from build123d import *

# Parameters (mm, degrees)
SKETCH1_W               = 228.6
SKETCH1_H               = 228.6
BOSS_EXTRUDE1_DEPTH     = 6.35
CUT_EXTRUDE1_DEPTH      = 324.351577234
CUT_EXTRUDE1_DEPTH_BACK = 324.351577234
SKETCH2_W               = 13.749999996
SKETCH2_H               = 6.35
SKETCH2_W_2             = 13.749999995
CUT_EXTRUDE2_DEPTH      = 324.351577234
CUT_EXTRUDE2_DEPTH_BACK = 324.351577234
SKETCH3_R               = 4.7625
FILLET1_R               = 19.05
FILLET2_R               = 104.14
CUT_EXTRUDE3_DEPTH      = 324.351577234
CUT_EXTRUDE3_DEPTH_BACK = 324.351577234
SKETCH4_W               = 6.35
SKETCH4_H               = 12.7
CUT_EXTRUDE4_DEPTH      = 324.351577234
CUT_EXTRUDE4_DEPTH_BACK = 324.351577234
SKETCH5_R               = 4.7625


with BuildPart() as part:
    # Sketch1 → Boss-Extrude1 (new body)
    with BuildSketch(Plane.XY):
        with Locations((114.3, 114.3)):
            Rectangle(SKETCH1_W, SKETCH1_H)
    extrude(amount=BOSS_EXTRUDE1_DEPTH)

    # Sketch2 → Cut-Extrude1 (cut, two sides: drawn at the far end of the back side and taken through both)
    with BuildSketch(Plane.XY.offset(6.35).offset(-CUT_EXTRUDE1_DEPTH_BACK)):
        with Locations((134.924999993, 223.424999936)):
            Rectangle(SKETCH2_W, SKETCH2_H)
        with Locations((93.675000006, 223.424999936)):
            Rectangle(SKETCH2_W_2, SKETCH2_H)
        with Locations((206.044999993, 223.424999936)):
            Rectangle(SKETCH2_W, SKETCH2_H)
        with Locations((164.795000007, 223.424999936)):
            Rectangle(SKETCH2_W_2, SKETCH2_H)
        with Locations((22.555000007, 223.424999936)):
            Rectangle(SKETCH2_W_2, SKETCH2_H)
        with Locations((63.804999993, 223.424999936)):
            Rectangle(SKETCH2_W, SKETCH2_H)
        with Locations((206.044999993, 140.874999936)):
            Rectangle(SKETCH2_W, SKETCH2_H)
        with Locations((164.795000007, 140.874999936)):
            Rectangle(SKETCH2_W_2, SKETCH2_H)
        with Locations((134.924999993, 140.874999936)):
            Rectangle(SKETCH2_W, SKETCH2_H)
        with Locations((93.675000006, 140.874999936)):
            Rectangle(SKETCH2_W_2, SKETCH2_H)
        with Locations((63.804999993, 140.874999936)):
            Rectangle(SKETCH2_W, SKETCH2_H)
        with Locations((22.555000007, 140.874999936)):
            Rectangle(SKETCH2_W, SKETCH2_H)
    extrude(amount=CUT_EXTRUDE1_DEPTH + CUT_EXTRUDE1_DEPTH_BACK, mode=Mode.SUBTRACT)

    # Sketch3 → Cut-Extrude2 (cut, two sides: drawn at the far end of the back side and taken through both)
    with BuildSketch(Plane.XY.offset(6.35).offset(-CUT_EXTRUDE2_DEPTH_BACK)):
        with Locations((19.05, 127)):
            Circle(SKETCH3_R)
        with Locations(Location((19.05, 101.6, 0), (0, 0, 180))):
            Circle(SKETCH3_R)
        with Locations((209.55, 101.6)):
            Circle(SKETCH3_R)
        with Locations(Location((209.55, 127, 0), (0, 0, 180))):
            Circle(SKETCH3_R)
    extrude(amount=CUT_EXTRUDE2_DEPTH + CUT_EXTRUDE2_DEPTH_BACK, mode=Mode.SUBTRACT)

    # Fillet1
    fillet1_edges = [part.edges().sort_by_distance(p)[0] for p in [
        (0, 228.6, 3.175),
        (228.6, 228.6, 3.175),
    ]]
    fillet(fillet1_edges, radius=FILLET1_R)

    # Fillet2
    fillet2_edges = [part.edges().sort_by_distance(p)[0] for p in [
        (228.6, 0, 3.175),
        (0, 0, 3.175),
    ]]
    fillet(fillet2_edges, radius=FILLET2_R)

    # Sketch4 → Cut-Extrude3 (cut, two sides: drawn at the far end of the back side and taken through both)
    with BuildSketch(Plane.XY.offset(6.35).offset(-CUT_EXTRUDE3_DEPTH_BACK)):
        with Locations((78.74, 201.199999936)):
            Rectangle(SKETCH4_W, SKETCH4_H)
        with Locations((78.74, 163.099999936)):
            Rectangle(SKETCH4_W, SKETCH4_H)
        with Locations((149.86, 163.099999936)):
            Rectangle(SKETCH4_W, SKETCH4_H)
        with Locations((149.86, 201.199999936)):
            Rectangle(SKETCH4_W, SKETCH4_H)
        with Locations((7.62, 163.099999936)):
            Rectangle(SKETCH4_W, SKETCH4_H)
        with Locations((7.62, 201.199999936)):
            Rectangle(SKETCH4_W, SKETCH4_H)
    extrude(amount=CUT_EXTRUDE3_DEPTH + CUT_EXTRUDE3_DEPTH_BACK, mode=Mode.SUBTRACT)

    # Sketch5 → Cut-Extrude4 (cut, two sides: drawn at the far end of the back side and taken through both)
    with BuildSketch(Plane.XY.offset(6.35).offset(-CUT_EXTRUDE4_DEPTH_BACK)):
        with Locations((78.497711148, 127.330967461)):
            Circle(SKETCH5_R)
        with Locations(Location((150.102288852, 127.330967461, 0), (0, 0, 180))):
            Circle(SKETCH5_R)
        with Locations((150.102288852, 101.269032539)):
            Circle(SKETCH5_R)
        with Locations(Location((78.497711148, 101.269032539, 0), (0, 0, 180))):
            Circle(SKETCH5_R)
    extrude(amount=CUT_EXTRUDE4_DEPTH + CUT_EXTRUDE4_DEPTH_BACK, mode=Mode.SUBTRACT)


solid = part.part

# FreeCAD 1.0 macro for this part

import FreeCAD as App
import Part
import Sketcher
from FreeCAD import Vector
Q = App.Units.Quantity


def edges_at(feature, points):
    """Names of the edges that pass closest to the given points."""
    edges = feature.Shape.Edges
    near = lambda p: min(range(len(edges)), key=lambda i: edges[i].distToShape(Part.Vertex(*p))[0])
    return sorted({f"Edge{near(p) + 1}" for p in points})


def add_polygon(sketch, points):
    """Adds a closed chain of lines whose ends are joined by coincident constraints."""
    first, n = sketch.GeometryCount, len(points)
    for a, b in zip(points, points[1:] + points[:1]):
        sketch.addGeometry(Part.LineSegment(App.Vector(*a, 0), App.Vector(*b, 0)), False)
    for i in range(n):
        sketch.addConstraint(Sketcher.Constraint("Coincident", first + i, 2, first + (i + 1) % n, 1))

doc = App.newDocument("Part")
body = doc.addObject("PartDesign::Body", "Body")

# Sketch on XY plane
sketch1 = doc.addObject("Sketcher::SketchObject", "Sketch")
body.addObject(sketch1)
sketch1.AttachmentSupport = (doc.XY_Plane, [""])
sketch1.MapMode = "FlatFace"
add_polygon(sketch1, [(0, 229), (0, 0), (229, 0), (229, 229)])  # lines 0-3
sketch1.addConstraint(Sketcher.Constraint("Vertical", 0))
sketch1.addConstraint(Sketcher.Constraint("Horizontal", 1))
sketch1.addConstraint(Sketcher.Constraint("Vertical", 2))
sketch1.addConstraint(Sketcher.Constraint("Horizontal", 3))
sketch1.addConstraint(Sketcher.Constraint("Coincident", 0, 2, -1, 1))
sketch1.addConstraint(Sketcher.Constraint("Equal", 3, 0))
sketch1.addConstraint(Sketcher.Constraint("DistanceX", 1, 1, 1, 2, Q("9 in")))
pad1 = doc.addObject("PartDesign::Pad", "Pad")
body.addObject(pad1)
pad1.Profile = sketch1
pad1.Length = Q("0.25 in")

# Sketch on XY plane
sketch2 = doc.addObject("Sketcher::SketchObject", "Sketch001")
body.addObject(sketch2)
sketch2.AttachmentSupport = (doc.XY_Plane, [""])
sketch2.MapMode = "FlatFace"
sketch2.AttachmentOffset = App.Placement(Vector(0, 0, 0.25 * 25.4), App.Rotation())
add_polygon(sketch2, [(128, 227), (128, 220), (142, 220), (142, 227)])  # lines 0-3
add_polygon(sketch2, [(87, 227), (87, 220), (101, 220), (101, 227)])  # lines 4-7
add_polygon(sketch2, [(199, 227), (199, 220), (213, 220), (213, 227)])  # lines 8-11
add_polygon(sketch2, [(158, 227), (158, 220), (172, 220), (172, 227)])  # lines 12-15
add_polygon(sketch2, [(16, 227), (16, 220), (29, 220), (29, 227)])  # lines 16-19
add_polygon(sketch2, [(57, 227), (57, 220), (71, 220), (71, 227)])  # lines 20-23
add_polygon(sketch2, [(199, 144), (199, 138), (213, 138), (213, 144)])  # lines 24-27
add_polygon(sketch2, [(158, 144), (158, 138), (172, 138), (172, 144)])  # lines 28-31
add_polygon(sketch2, [(128, 144), (128, 138), (142, 138), (142, 144)])  # lines 32-35
add_polygon(sketch2, [(87, 144), (87, 138), (101, 138), (101, 144)])  # lines 36-39
add_polygon(sketch2, [(57, 144), (57, 138), (71, 138), (71, 144)])  # lines 40-43
add_polygon(sketch2, [(16, 144), (16, 138), (29, 138), (29, 144)])  # lines 44-47
sketch2.addConstraint(Sketcher.Constraint("Vertical", 0))
sketch2.addConstraint(Sketcher.Constraint("Horizontal", 1))
sketch2.addConstraint(Sketcher.Constraint("Vertical", 2))
sketch2.addConstraint(Sketcher.Constraint("Horizontal", 3))
sketch2.addConstraint(Sketcher.Constraint("Vertical", 4))
sketch2.addConstraint(Sketcher.Constraint("Horizontal", 5))
sketch2.addConstraint(Sketcher.Constraint("Vertical", 6))
sketch2.addConstraint(Sketcher.Constraint("Horizontal", 7))
sketch2.addConstraint(Sketcher.Constraint("Vertical", 8))
sketch2.addConstraint(Sketcher.Constraint("Horizontal", 9))
sketch2.addConstraint(Sketcher.Constraint("Vertical", 10))
sketch2.addConstraint(Sketcher.Constraint("Horizontal", 11))
sketch2.addConstraint(Sketcher.Constraint("Vertical", 12))
sketch2.addConstraint(Sketcher.Constraint("Horizontal", 13))
sketch2.addConstraint(Sketcher.Constraint("Vertical", 14))
sketch2.addConstraint(Sketcher.Constraint("Horizontal", 15))
sketch2.addConstraint(Sketcher.Constraint("Vertical", 16))
sketch2.addConstraint(Sketcher.Constraint("Horizontal", 17))
sketch2.addConstraint(Sketcher.Constraint("Vertical", 18))
sketch2.addConstraint(Sketcher.Constraint("Horizontal", 19))
sketch2.addConstraint(Sketcher.Constraint("Vertical", 20))
sketch2.addConstraint(Sketcher.Constraint("Horizontal", 21))
sketch2.addConstraint(Sketcher.Constraint("Vertical", 22))
sketch2.addConstraint(Sketcher.Constraint("Horizontal", 23))
sketch2.addConstraint(Sketcher.Constraint("Vertical", 24))
sketch2.addConstraint(Sketcher.Constraint("Horizontal", 25))
sketch2.addConstraint(Sketcher.Constraint("Vertical", 26))
sketch2.addConstraint(Sketcher.Constraint("Horizontal", 27))
sketch2.addConstraint(Sketcher.Constraint("Vertical", 28))
sketch2.addConstraint(Sketcher.Constraint("Horizontal", 29))
sketch2.addConstraint(Sketcher.Constraint("Vertical", 30))
sketch2.addConstraint(Sketcher.Constraint("Horizontal", 31))
sketch2.addConstraint(Sketcher.Constraint("Vertical", 32))
sketch2.addConstraint(Sketcher.Constraint("Horizontal", 33))
sketch2.addConstraint(Sketcher.Constraint("Vertical", 34))
sketch2.addConstraint(Sketcher.Constraint("Horizontal", 35))
sketch2.addConstraint(Sketcher.Constraint("Vertical", 36))
sketch2.addConstraint(Sketcher.Constraint("Horizontal", 37))
sketch2.addConstraint(Sketcher.Constraint("Vertical", 38))
sketch2.addConstraint(Sketcher.Constraint("Horizontal", 39))
sketch2.addConstraint(Sketcher.Constraint("Vertical", 40))
sketch2.addConstraint(Sketcher.Constraint("Horizontal", 41))
sketch2.addConstraint(Sketcher.Constraint("Vertical", 42))
sketch2.addConstraint(Sketcher.Constraint("Horizontal", 43))
sketch2.addConstraint(Sketcher.Constraint("Vertical", 44))
sketch2.addConstraint(Sketcher.Constraint("Horizontal", 45))
sketch2.addConstraint(Sketcher.Constraint("Vertical", 46))
sketch2.addConstraint(Sketcher.Constraint("Horizontal", 47))
sketch2.addConstraint(Sketcher.Constraint("Horizontal", 1, 2, 4, 2))
sketch2.addConstraint(Sketcher.Constraint("Horizontal", 3, 2, 6, 2))
sketch2.addConstraint(Sketcher.Constraint("Horizontal", 5, 2, 8, 2))
sketch2.addConstraint(Sketcher.Constraint("Horizontal", 7, 2, 10, 2))
sketch2.addConstraint(Sketcher.Constraint("Horizontal", 9, 2, 12, 2))
sketch2.addConstraint(Sketcher.Constraint("Horizontal", 11, 2, 14, 2))
sketch2.addConstraint(Sketcher.Constraint("Horizontal", 13, 2, 16, 2))
sketch2.addConstraint(Sketcher.Constraint("Horizontal", 15, 2, 18, 2))
sketch2.addConstraint(Sketcher.Constraint("Horizontal", 17, 2, 20, 2))
sketch2.addConstraint(Sketcher.Constraint("Horizontal", 19, 2, 22, 2))
sketch2.addConstraint(Sketcher.Constraint("Horizontal", 25, 2, 28, 2))
sketch2.addConstraint(Sketcher.Constraint("Horizontal", 27, 2, 30, 2))
sketch2.addConstraint(Sketcher.Constraint("Horizontal", 29, 2, 32, 2))
sketch2.addConstraint(Sketcher.Constraint("Horizontal", 31, 2, 34, 2))
sketch2.addConstraint(Sketcher.Constraint("Horizontal", 33, 2, 36, 2))
sketch2.addConstraint(Sketcher.Constraint("Horizontal", 35, 2, 38, 2))
sketch2.addConstraint(Sketcher.Constraint("Horizontal", 37, 2, 40, 2))
sketch2.addConstraint(Sketcher.Constraint("Horizontal", 39, 2, 42, 2))
sketch2.addConstraint(Sketcher.Constraint("Horizontal", 41, 2, 44, 2))
sketch2.addConstraint(Sketcher.Constraint("Horizontal", 43, 2, 46, 2))
sketch2.addConstraint(Sketcher.Constraint("Vertical", 11, 2, 24, 2))
sketch2.addConstraint(Sketcher.Constraint("Vertical", 10, 2, 25, 2))
sketch2.addConstraint(Sketcher.Constraint("Vertical", 15, 2, 28, 2))
sketch2.addConstraint(Sketcher.Constraint("Vertical", 14, 2, 29, 2))
sketch2.addConstraint(Sketcher.Constraint("Vertical", 3, 2, 32, 2))
sketch2.addConstraint(Sketcher.Constraint("Vertical", 2, 2, 33, 2))
sketch2.addConstraint(Sketcher.Constraint("Vertical", 7, 2, 36, 2))
sketch2.addConstraint(Sketcher.Constraint("Vertical", 6, 2, 37, 2))
sketch2.addConstraint(Sketcher.Constraint("Vertical", 23, 2, 40, 2))
sketch2.addConstraint(Sketcher.Constraint("Vertical", 22, 2, 41, 2))
sketch2.addConstraint(Sketcher.Constraint("Vertical", 19, 2, 44, 2))
sketch2.addConstraint(Sketcher.Constraint("Vertical", 18, 2, 45, 2))
sketch2.addConstraint(Sketcher.Constraint("Equal", 3, 5))
sketch2.addConstraint(Sketcher.Constraint("Equal", 7, 9))
sketch2.addConstraint(Sketcher.Constraint("Equal", 11, 13))
sketch2.addConstraint(Sketcher.Constraint("Equal", 15, 17))
sketch2.addConstraint(Sketcher.Constraint("Equal", 19, 21))
sketch2.addConstraint(Sketcher.Constraint("Equal", 22, 24))
sketch2.addConstraint(Sketcher.Constraint("DistanceY", 26, 2, 9, 2, Q("3 in")))
sketch2.addConstraint(Sketcher.Constraint("DistanceY", 0, 2, 0, 1, Q("0.25 in")))
sketch2.addConstraint(Sketcher.Constraint("DistanceX", 0, 2, 8, 2, Q("2.8 in")))
sketch2.addConstraint(Sketcher.Constraint("DistanceX", 16, 2, 4, 2, Q("2.8 in")))
sketch2.addConstraint(Sketcher.Constraint("DistanceX", 36, 2, 28, 2, Q("2.8 in")))
sketch2.addConstraint(Sketcher.Constraint("DistanceX", 40, 2, 32, 2, Q("2.8 in")))
sketch2.addConstraint(Sketcher.Constraint("DistanceX", 1, 1, 1, 2, 13.75))
sketch2.addConstraint(Sketcher.Constraint("DistanceX", -1, 1, 0, 2, 128.05))
sketch2.addConstraint(Sketcher.Constraint("DistanceY", -1, 1, 0, 2, 220.25))
sketch2.addConstraint(Sketcher.Constraint("DistanceX", -1, 1, 4, 2, 86.8))
pocket1 = doc.addObject("PartDesign::Pocket", "Pocket")
body.addObject(pocket1)
pocket1.Profile = sketch2
pocket1.Type = "ThroughAll"
pocket1.Midplane = True

# Sketch on XY plane
sketch3 = doc.addObject("Sketcher::SketchObject", "Sketch002")
body.addObject(sketch3)
sketch3.AttachmentSupport = (doc.XY_Plane, [""])
sketch3.MapMode = "FlatFace"
sketch3.AttachmentOffset = App.Placement(Vector(0, 0, 0.25 * 25.4), App.Rotation())
sketch3.addGeometry(Part.Circle(Vector(19.1, 127, 0), Vector(0, 0, 1), 4.8), False)
sketch3.addGeometry(Part.Circle(Vector(19.1, 101.6, 0), Vector(0, 0, 1), 4.8), False)
sketch3.addGeometry(Part.Circle(Vector(209.6, 101.6, 0), Vector(0, 0, 1), 4.8), False)
sketch3.addGeometry(Part.Circle(Vector(209.6, 127, 0), Vector(0, 0, 1), 4.8), False)
sketch3.addConstraint(Sketcher.Constraint("Equal", 0, 1))
sketch3.addConstraint(Sketcher.Constraint("Equal", 1, 2))
sketch3.addConstraint(Sketcher.Constraint("Equal", 2, 3))
sketch3.addConstraint(Sketcher.Constraint("Horizontal", 1, 3, 2, 3))
sketch3.addConstraint(Sketcher.Constraint("Horizontal", 0, 3, 3, 3))
sketch3.addConstraint(Sketcher.Constraint("Vertical", 0, 3, 1, 3))
sketch3.addConstraint(Sketcher.Constraint("Vertical", 2, 3, 3, 3))
sketch3.addConstraint(Sketcher.Constraint("Diameter", 0, Q("0.375 in")))
sketch3.addConstraint(Sketcher.Constraint("DistanceY", -1, 1, 0, 3, Q("5 in")))
sketch3.addConstraint(Sketcher.Constraint("DistanceY", -1, 1, 1, 3, Q("4 in")))
sketch3.addConstraint(Sketcher.Constraint("DistanceX", 1, 3, 2, 3, Q("7.5 in")))
sketch3.addConstraint(Sketcher.Constraint("DistanceX", -1, 1, 0, 3, Q("0.75 in")))
pocket2 = doc.addObject("PartDesign::Pocket", "Pocket001")
body.addObject(pocket2)
pocket2.Profile = sketch3
pocket2.Type = "ThroughAll"
pocket2.Midplane = True
doc.recompute()

fillet = doc.addObject("PartDesign::Fillet", "Fillet")
body.addObject(fillet)
fillet.Base = (pocket2, edges_at(pocket2, [(0, 228.6, 3.175), (228.6, 228.6, 3.175)]))
fillet.Radius = Q("0.75 in")
doc.recompute()

fillet2 = doc.addObject("PartDesign::Fillet", "Fillet001")
body.addObject(fillet2)
fillet2.Base = (fillet, edges_at(fillet, [(228.6, 0, 3.175), (0, 0, 3.175)]))
fillet2.Radius = Q("4.1 in")

# Sketch on XY plane
sketch4 = doc.addObject("Sketcher::SketchObject", "Sketch003")
body.addObject(sketch4)
sketch4.AttachmentSupport = (doc.XY_Plane, [""])
sketch4.MapMode = "FlatFace"
sketch4.AttachmentOffset = App.Placement(Vector(0, 0, 0.25 * 25.4), App.Rotation())
add_polygon(sketch4, [(76, 208), (76, 195), (82, 195), (82, 208)])  # lines 0-3
add_polygon(sketch4, [(76, 169), (76, 157), (82, 157), (82, 169)])  # lines 4-7
add_polygon(sketch4, [(147, 169), (147, 157), (153, 157), (153, 169)])  # lines 8-11
add_polygon(sketch4, [(147, 208), (147, 195), (153, 195), (153, 208)])  # lines 12-15
add_polygon(sketch4, [(4, 169), (4, 157), (11, 157), (11, 169)])  # lines 16-19
add_polygon(sketch4, [(4, 208), (4, 195), (11, 195), (11, 208)])  # lines 20-23
sketch4.addConstraint(Sketcher.Constraint("Vertical", 0))
sketch4.addConstraint(Sketcher.Constraint("Horizontal", 1))
sketch4.addConstraint(Sketcher.Constraint("Vertical", 2))
sketch4.addConstraint(Sketcher.Constraint("Horizontal", 3))
sketch4.addConstraint(Sketcher.Constraint("Vertical", 4))
sketch4.addConstraint(Sketcher.Constraint("Horizontal", 5))
sketch4.addConstraint(Sketcher.Constraint("Vertical", 6))
sketch4.addConstraint(Sketcher.Constraint("Horizontal", 7))
sketch4.addConstraint(Sketcher.Constraint("Vertical", 8))
sketch4.addConstraint(Sketcher.Constraint("Horizontal", 9))
sketch4.addConstraint(Sketcher.Constraint("Vertical", 10))
sketch4.addConstraint(Sketcher.Constraint("Horizontal", 11))
sketch4.addConstraint(Sketcher.Constraint("Vertical", 12))
sketch4.addConstraint(Sketcher.Constraint("Horizontal", 13))
sketch4.addConstraint(Sketcher.Constraint("Vertical", 14))
sketch4.addConstraint(Sketcher.Constraint("Horizontal", 15))
sketch4.addConstraint(Sketcher.Constraint("Vertical", 16))
sketch4.addConstraint(Sketcher.Constraint("Horizontal", 17))
sketch4.addConstraint(Sketcher.Constraint("Vertical", 18))
sketch4.addConstraint(Sketcher.Constraint("Horizontal", 19))
sketch4.addConstraint(Sketcher.Constraint("Vertical", 20))
sketch4.addConstraint(Sketcher.Constraint("Horizontal", 21))
sketch4.addConstraint(Sketcher.Constraint("Vertical", 22))
sketch4.addConstraint(Sketcher.Constraint("Horizontal", 23))
sketch4.addConstraint(Sketcher.Constraint("Horizontal", 5, 2, 8, 2))
sketch4.addConstraint(Sketcher.Constraint("Horizontal", 7, 2, 10, 2))
sketch4.addConstraint(Sketcher.Constraint("Horizontal", 1, 2, 12, 2))
sketch4.addConstraint(Sketcher.Constraint("Horizontal", 3, 2, 14, 2))
sketch4.addConstraint(Sketcher.Constraint("Horizontal", 9, 2, 16, 2))
sketch4.addConstraint(Sketcher.Constraint("Horizontal", 11, 2, 18, 2))
sketch4.addConstraint(Sketcher.Constraint("Horizontal", 13, 2, 20, 2))
sketch4.addConstraint(Sketcher.Constraint("Horizontal", 15, 2, 22, 2))
sketch4.addConstraint(Sketcher.Constraint("Vertical", 3, 2, 4, 2))
sketch4.addConstraint(Sketcher.Constraint("Vertical", 2, 2, 5, 2))
sketch4.addConstraint(Sketcher.Constraint("Vertical", 11, 2, 12, 2))
sketch4.addConstraint(Sketcher.Constraint("Vertical", 10, 2, 13, 2))
sketch4.addConstraint(Sketcher.Constraint("Vertical", 19, 2, 20, 2))
sketch4.addConstraint(Sketcher.Constraint("Vertical", 18, 2, 21, 2))
sketch4.addConstraint(Sketcher.Constraint("Equal", 7, 9))
sketch4.addConstraint(Sketcher.Constraint("Equal", 15, 17))
sketch4.addConstraint(Sketcher.Constraint("Equal", 2, 4))
sketch4.addConstraint(Sketcher.Constraint("DistanceY", 0, 2, 0, 1, Q("0.5 in")))
sketch4.addConstraint(Sketcher.Constraint("DistanceY", 4, 2, 3, 2, Q("2 in")))
sketch4.addConstraint(Sketcher.Constraint("DistanceX", 1, 1, 1, 2, Q("0.25 in")))
sketch4.addConstraint(Sketcher.Constraint("DistanceX", 4, 2, 8, 2, Q("2.8 in")))
sketch4.addConstraint(Sketcher.Constraint("DistanceX", 16, 2, 4, 2, Q("2.8 in")))
sketch4.addConstraint(Sketcher.Constraint("DistanceX", -1, 1, 0, 2, Q("2.975 in")))
sketch4.addConstraint(Sketcher.Constraint("DistanceY", -1, 1, 0, 2, 194.85))
pocket3 = doc.addObject("PartDesign::Pocket", "Pocket002")
body.addObject(pocket3)
pocket3.Profile = sketch4
pocket3.Type = "ThroughAll"
pocket3.Midplane = True

# Sketch on XY plane
sketch5 = doc.addObject("Sketcher::SketchObject", "Sketch004")
body.addObject(sketch5)
sketch5.AttachmentSupport = (doc.XY_Plane, [""])
sketch5.MapMode = "FlatFace"
sketch5.AttachmentOffset = App.Placement(Vector(0, 0, 0.25 * 25.4), App.Rotation())
sketch5.addGeometry(Part.Circle(Vector(78.5, 127.3, 0), Vector(0, 0, 1), 4.8), False)
sketch5.addGeometry(Part.Circle(Vector(150.1, 127.3, 0), Vector(0, 0, 1), 4.8), False)
sketch5.addGeometry(Part.Circle(Vector(150.1, 101.3, 0), Vector(0, 0, 1), 4.8), False)
sketch5.addGeometry(Part.Circle(Vector(78.5, 101.3, 0), Vector(0, 0, 1), 4.8), False)
sketch5.addConstraint(Sketcher.Constraint("Equal", 0, 1))
sketch5.addConstraint(Sketcher.Constraint("Equal", 1, 2))
sketch5.addConstraint(Sketcher.Constraint("Equal", 2, 3))
sketch5.addConstraint(Sketcher.Constraint("Horizontal", 0, 3, 1, 3))
sketch5.addConstraint(Sketcher.Constraint("Horizontal", 2, 3, 3, 3))
sketch5.addConstraint(Sketcher.Constraint("Vertical", 1, 3, 2, 3))
sketch5.addConstraint(Sketcher.Constraint("Vertical", 0, 3, 3, 3))
sketch5.addConstraint(Sketcher.Constraint("Diameter", 0, Q("0.375 in")))
sketch5.addConstraint(Sketcher.Constraint("DistanceX", -1, 1, 0, 3, 78.497711))
sketch5.addConstraint(Sketcher.Constraint("DistanceX", -1, 1, 1, 3, 150.102289))
sketch5.addConstraint(Sketcher.Constraint("DistanceY", -1, 1, 0, 3, 127.330967))
sketch5.addConstraint(Sketcher.Constraint("DistanceY", -1, 1, 2, 3, 101.269033))
pocket4 = doc.addObject("PartDesign::Pocket", "Pocket003")
body.addObject(pocket4)
pocket4.Profile = sketch5
pocket4.Type = "ThroughAll"
pocket4.Midplane = True

doc.recompute()
